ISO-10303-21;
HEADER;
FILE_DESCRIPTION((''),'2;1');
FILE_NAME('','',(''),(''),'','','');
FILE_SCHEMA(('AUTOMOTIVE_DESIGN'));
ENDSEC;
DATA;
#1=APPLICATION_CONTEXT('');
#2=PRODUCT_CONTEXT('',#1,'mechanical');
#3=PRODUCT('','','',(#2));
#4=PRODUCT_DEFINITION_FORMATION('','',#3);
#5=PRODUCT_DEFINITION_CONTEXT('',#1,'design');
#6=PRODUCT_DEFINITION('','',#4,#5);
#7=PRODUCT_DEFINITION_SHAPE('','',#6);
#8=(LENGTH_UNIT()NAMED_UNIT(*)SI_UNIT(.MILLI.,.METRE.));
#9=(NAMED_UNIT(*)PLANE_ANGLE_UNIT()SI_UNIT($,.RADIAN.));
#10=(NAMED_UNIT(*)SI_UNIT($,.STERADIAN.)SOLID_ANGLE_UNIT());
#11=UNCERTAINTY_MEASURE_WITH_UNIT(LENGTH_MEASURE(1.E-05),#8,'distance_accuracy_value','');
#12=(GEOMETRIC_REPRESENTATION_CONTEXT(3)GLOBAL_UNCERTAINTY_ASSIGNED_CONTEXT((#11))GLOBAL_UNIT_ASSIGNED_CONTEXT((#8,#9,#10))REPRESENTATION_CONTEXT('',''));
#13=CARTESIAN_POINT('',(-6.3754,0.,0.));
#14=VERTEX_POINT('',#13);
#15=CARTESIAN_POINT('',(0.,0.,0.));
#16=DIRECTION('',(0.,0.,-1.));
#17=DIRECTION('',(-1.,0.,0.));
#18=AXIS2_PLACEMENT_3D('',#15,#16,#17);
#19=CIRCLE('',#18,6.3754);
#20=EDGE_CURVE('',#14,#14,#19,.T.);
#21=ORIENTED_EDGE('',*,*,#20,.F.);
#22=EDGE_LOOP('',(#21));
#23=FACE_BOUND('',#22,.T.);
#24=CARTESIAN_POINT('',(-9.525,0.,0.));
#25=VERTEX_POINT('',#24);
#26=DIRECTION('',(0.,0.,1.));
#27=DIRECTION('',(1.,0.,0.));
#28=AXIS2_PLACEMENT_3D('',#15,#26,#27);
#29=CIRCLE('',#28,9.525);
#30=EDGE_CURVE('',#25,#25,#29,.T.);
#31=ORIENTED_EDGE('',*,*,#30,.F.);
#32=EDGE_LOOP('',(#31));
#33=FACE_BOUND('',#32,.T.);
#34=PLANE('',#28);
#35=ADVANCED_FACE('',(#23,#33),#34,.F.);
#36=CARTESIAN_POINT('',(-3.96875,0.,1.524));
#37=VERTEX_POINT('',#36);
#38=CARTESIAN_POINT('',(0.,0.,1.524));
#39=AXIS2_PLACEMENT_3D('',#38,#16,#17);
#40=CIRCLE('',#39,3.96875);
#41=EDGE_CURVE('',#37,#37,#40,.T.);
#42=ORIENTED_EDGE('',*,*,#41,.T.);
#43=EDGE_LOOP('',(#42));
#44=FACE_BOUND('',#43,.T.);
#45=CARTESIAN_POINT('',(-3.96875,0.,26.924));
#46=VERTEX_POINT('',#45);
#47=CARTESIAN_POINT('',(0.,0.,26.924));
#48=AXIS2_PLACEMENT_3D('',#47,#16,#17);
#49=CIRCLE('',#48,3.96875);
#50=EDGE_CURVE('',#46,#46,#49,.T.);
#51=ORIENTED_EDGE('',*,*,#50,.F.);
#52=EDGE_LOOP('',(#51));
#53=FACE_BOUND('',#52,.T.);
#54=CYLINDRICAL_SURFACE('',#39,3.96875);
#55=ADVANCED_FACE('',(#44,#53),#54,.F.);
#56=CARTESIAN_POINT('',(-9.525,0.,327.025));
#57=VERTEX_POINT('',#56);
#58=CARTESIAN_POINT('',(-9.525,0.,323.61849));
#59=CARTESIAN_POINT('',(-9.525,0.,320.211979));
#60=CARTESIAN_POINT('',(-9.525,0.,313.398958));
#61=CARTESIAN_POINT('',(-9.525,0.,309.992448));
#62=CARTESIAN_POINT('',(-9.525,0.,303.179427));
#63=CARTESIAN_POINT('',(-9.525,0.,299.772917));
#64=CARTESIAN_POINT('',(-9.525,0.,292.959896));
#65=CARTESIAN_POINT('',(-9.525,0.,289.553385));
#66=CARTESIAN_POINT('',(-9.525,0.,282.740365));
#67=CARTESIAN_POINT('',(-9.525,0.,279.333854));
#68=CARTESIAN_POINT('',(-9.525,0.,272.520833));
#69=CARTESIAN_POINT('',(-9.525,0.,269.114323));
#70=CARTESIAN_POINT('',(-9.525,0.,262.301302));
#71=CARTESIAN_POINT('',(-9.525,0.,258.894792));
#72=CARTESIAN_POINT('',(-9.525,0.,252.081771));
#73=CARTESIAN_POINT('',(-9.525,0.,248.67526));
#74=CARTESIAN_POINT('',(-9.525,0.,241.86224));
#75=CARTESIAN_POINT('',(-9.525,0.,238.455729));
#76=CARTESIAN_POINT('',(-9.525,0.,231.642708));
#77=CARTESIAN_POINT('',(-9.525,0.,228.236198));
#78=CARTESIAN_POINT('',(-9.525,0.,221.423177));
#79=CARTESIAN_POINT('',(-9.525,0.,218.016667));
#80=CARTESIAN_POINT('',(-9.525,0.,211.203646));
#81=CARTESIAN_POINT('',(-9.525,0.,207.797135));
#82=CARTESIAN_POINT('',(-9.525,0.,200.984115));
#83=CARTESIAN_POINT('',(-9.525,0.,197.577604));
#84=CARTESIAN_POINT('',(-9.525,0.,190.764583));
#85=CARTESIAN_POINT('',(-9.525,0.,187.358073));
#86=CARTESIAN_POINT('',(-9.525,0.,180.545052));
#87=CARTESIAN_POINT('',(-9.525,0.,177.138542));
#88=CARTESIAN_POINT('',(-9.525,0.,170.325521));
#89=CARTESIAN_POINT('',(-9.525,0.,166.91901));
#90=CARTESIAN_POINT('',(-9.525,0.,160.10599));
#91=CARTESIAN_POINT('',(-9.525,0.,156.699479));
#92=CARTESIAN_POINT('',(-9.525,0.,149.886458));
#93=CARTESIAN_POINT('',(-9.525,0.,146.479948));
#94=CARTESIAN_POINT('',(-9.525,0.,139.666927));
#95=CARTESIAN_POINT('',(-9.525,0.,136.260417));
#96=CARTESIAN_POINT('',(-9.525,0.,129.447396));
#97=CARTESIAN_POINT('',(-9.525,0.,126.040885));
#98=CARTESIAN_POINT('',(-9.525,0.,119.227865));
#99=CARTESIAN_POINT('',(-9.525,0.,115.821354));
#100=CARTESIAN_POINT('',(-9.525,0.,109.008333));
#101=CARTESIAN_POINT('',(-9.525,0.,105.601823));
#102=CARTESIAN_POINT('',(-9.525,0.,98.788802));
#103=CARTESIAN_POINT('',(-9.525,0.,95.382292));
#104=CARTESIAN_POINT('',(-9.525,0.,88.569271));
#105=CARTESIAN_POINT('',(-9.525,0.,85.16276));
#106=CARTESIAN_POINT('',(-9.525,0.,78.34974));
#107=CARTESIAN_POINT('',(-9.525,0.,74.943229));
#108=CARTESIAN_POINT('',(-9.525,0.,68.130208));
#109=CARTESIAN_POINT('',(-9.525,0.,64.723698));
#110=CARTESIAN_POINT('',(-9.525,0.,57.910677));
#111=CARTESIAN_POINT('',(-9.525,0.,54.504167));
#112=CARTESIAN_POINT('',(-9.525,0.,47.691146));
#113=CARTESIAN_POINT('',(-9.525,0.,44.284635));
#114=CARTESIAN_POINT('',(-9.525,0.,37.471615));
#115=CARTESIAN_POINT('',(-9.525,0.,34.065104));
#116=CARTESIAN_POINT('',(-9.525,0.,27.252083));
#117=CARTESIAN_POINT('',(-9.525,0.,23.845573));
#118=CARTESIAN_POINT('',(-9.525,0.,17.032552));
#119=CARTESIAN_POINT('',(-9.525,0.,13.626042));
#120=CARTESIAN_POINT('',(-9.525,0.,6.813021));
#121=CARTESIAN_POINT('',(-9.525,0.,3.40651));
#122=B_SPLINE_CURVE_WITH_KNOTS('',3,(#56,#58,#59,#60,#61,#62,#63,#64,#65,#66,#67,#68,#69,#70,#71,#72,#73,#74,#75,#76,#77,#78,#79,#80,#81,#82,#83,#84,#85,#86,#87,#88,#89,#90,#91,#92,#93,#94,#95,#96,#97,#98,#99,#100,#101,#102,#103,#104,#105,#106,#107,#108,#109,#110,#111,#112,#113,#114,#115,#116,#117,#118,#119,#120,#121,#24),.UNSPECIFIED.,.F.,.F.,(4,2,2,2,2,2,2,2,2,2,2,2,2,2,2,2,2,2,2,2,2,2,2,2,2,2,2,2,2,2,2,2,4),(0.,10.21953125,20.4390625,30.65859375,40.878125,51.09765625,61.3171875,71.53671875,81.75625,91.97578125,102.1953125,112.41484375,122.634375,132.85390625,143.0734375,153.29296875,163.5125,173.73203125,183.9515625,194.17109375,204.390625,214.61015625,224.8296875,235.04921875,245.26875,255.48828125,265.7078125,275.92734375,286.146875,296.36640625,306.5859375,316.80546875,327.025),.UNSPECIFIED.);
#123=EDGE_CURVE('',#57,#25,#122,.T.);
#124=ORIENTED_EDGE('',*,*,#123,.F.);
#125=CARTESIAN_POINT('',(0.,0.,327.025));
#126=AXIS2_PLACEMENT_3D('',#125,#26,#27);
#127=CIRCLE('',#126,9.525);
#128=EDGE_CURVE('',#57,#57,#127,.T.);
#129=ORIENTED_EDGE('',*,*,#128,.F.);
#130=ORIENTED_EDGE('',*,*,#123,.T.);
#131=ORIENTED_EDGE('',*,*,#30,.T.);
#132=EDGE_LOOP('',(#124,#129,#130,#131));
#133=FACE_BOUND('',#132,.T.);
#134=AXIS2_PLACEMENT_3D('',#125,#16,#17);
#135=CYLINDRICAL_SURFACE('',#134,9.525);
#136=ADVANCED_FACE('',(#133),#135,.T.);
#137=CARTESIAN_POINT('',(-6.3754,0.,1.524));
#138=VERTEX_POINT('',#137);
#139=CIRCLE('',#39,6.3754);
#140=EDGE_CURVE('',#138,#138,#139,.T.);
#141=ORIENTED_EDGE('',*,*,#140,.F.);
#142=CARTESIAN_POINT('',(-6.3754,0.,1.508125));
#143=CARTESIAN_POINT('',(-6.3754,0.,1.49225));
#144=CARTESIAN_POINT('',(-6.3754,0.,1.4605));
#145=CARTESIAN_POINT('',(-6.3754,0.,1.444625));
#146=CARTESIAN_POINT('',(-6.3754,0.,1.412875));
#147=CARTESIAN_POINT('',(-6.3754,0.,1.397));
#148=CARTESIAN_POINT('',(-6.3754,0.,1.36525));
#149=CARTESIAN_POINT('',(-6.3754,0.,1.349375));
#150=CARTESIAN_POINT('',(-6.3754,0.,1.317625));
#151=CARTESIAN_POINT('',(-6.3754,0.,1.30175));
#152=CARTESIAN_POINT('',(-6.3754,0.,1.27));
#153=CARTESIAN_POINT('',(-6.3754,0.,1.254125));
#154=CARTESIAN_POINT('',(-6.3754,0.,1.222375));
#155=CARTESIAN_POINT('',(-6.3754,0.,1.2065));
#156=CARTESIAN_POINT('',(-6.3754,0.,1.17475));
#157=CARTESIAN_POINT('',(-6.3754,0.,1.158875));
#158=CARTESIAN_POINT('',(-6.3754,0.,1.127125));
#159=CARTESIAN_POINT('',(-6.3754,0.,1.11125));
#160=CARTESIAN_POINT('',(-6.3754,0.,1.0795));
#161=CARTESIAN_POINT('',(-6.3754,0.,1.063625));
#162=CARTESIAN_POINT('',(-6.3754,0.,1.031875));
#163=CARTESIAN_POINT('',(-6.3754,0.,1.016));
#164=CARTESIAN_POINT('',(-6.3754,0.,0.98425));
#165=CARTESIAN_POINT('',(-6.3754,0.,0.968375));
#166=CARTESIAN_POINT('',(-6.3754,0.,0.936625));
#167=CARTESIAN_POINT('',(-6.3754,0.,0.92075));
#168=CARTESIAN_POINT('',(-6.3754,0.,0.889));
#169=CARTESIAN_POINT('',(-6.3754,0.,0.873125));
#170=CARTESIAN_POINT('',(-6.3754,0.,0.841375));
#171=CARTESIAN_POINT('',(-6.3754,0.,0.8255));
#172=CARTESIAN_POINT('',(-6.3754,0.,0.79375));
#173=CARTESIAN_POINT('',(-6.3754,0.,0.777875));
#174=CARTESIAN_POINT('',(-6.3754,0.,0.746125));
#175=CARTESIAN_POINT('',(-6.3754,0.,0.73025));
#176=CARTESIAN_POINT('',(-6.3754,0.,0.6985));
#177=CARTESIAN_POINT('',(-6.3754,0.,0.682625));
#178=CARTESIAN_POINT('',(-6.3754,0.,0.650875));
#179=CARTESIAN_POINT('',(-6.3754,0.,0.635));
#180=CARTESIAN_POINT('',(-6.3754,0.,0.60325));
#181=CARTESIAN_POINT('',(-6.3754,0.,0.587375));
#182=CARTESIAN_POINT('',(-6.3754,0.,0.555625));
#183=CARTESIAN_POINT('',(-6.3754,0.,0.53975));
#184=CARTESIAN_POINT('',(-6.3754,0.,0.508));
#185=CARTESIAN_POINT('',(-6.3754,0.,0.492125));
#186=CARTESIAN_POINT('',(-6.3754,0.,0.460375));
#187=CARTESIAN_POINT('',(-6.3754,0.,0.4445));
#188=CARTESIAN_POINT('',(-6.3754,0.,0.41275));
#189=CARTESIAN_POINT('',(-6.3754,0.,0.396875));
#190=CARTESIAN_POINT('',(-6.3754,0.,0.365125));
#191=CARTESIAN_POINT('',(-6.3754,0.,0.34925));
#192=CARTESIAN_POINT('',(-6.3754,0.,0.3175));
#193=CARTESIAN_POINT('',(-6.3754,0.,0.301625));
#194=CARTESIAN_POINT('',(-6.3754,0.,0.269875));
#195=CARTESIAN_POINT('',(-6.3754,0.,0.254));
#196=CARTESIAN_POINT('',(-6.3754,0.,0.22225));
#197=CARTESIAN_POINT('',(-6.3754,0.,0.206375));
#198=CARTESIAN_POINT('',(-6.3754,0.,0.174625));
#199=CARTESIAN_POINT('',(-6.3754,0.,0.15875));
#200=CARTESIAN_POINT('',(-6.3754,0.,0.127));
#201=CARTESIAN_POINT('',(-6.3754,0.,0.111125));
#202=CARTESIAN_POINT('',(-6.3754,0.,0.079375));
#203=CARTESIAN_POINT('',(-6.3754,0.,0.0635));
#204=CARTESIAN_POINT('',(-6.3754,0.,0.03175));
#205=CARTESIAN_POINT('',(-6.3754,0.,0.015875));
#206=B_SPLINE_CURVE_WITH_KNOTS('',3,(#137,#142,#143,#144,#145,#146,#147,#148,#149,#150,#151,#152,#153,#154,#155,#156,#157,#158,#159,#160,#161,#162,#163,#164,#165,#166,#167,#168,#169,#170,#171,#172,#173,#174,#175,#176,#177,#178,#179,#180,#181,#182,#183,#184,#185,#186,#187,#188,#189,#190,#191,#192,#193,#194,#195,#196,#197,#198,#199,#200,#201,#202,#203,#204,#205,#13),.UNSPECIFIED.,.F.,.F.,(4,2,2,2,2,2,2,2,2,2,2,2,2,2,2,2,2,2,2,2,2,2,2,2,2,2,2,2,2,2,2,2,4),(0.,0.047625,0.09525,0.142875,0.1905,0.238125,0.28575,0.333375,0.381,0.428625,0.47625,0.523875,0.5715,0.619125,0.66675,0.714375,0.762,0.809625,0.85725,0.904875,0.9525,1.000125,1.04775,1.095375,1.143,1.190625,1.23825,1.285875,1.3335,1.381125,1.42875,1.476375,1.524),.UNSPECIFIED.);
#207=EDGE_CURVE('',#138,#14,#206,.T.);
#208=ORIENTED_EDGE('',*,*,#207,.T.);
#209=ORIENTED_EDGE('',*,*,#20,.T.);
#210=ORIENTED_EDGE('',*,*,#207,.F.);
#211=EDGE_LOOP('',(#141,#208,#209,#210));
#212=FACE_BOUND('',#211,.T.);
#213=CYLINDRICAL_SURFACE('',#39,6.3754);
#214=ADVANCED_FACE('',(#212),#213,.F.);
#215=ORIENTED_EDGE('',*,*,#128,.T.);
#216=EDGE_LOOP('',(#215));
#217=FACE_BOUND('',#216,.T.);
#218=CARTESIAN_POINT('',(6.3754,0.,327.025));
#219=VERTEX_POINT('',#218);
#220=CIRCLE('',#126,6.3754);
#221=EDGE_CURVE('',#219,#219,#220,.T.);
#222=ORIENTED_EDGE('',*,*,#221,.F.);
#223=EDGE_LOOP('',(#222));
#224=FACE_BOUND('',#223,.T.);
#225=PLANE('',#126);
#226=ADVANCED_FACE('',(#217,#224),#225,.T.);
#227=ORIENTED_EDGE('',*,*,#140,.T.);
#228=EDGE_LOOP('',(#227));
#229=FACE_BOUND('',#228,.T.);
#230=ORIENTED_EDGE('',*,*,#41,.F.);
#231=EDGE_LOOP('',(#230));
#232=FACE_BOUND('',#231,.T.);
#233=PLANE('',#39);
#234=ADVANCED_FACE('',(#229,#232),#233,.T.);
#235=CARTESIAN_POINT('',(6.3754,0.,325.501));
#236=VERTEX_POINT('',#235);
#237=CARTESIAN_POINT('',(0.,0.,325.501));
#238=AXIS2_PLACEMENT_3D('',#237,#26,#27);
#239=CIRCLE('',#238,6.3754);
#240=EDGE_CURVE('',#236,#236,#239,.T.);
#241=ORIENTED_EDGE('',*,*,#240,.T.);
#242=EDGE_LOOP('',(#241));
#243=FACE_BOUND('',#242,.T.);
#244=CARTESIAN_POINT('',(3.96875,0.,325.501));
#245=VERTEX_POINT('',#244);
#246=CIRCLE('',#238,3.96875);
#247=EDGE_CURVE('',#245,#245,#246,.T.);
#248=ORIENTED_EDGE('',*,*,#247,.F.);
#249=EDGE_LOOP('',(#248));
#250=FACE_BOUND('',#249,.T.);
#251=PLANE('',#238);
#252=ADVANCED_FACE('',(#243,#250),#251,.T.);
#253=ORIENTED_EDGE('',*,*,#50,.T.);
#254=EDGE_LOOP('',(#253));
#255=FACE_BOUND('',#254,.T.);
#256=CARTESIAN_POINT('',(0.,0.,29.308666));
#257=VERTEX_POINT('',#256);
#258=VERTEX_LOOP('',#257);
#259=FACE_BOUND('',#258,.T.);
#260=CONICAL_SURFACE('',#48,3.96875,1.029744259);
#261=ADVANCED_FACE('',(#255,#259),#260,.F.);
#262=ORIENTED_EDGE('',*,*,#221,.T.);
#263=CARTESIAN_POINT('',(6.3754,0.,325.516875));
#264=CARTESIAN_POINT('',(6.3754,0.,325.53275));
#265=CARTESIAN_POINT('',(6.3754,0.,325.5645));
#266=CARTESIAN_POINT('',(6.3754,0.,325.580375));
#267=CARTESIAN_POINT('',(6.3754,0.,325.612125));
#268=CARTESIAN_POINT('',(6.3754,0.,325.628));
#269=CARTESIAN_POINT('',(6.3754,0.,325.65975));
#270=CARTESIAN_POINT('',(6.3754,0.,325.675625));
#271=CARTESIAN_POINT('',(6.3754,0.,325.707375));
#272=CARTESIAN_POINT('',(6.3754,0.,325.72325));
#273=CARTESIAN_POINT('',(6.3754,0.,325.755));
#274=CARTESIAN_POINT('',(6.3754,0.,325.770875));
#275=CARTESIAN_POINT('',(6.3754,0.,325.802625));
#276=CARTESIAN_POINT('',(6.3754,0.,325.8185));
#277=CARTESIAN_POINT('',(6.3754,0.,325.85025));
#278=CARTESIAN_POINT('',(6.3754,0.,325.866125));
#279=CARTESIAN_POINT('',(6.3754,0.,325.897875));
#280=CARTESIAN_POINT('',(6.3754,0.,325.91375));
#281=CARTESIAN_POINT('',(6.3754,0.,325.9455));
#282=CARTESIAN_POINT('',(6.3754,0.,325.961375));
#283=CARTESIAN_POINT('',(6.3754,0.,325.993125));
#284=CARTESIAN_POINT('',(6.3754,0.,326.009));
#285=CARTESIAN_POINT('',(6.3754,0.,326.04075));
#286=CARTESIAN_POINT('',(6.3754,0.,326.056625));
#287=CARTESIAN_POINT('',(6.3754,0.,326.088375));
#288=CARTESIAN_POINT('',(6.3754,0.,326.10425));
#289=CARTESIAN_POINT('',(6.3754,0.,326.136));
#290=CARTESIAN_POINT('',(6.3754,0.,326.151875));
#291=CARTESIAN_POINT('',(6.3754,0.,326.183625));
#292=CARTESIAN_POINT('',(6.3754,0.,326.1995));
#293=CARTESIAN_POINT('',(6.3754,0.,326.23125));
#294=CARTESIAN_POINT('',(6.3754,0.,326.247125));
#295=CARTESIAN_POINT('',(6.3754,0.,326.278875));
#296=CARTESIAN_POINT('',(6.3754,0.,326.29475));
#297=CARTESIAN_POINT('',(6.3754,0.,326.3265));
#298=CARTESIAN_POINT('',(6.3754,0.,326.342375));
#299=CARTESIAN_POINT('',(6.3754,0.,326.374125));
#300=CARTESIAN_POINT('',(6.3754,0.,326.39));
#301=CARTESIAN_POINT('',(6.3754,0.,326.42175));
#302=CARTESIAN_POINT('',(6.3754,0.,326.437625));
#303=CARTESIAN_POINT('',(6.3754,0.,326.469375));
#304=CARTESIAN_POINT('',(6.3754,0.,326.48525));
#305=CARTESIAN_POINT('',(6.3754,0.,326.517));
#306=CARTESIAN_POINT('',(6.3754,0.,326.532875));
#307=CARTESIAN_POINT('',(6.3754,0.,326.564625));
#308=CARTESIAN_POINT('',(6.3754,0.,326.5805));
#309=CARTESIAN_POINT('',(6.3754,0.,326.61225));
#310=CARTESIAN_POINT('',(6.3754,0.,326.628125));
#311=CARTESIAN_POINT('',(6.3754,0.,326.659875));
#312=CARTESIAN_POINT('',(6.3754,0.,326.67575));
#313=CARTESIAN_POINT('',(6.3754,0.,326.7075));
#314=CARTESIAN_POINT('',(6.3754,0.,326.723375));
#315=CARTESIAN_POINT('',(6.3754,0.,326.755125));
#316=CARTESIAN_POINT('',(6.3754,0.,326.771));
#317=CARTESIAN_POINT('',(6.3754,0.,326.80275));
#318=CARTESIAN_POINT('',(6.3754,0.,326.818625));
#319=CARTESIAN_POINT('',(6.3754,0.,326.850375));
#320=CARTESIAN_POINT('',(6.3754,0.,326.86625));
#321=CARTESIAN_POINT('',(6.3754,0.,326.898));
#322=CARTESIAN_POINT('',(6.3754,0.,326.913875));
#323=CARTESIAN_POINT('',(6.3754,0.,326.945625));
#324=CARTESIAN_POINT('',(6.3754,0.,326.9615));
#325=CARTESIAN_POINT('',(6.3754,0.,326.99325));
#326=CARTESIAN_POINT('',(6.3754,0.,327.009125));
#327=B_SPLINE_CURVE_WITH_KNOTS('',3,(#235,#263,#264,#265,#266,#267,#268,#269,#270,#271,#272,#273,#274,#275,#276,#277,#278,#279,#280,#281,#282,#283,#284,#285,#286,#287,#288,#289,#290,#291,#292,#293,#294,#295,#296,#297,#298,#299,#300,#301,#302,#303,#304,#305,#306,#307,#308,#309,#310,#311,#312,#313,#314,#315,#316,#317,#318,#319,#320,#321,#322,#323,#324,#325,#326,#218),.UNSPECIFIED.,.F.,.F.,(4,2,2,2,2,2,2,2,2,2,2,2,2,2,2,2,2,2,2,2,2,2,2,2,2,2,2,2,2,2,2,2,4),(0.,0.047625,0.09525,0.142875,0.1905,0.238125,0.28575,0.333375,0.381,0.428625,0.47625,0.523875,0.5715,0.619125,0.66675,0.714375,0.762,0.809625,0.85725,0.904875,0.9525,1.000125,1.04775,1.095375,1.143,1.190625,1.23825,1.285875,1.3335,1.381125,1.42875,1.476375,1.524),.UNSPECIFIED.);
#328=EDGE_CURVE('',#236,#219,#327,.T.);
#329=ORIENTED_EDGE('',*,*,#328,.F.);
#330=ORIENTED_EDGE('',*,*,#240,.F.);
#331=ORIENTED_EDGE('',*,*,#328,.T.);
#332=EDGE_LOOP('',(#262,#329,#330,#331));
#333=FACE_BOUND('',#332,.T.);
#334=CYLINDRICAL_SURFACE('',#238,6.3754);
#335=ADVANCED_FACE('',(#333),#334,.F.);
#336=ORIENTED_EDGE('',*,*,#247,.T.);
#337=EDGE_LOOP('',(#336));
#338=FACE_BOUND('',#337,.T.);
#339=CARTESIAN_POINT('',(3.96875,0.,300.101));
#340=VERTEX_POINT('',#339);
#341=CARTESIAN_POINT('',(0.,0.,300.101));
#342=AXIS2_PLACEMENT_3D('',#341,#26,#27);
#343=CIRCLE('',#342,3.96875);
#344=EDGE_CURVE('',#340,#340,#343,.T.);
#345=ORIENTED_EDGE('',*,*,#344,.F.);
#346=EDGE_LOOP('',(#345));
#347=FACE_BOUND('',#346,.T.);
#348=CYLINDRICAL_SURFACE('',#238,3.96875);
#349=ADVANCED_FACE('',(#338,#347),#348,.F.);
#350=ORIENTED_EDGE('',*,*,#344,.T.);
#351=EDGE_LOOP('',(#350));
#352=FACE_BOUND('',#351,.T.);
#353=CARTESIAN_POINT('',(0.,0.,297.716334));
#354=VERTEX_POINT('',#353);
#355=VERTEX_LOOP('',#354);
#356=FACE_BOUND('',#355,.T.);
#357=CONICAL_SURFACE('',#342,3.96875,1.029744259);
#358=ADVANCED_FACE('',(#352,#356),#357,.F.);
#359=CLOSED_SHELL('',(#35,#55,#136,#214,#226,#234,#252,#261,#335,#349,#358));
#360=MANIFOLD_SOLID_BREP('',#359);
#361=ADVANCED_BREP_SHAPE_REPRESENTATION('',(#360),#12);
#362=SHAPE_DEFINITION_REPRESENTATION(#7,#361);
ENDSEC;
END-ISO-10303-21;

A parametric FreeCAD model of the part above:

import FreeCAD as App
import Part
import Sketcher
Q = App.Units.Quantity

doc = App.newDocument("Part")
params = doc.addObject("Spreadsheet::Sheet", "Params")
for row, (alias, value) in enumerate([
    ("sketch1_diameter", "0.75 in"),
    ("pad1_length", "12.875 in"),
    ("sketch2_diameter", "0.502 in"),
    ("pocket1_length", "0.06 in"),
    ("sketch3_diameter", "0.3125 in"),
    ("hole_diameter", "0.3125 in"),
    ("hole_depth", "1 in"),
    ("sketch4_diameter", "0.502 in"),
    ("pocket2_length", "0.06 in"),
    ("sketch5_diameter", "0.3125 in"),
    ("hole2_diameter", "0.3125 in"),
    ("hole2_depth", "1 in"),
], start=1):
    params.set(f"A{row}", alias)
    params.set(f"B{row}", "=" + value)
    params.setAlias(f"B{row}", alias)

body = doc.addObject("PartDesign::Body", "Body")

# Sketch on XY plane
sketch1 = body.newObject("Sketcher::SketchObject", "Sketch")
sketch1.AttachmentSupport = (doc.getObject("XY_Plane"), [""])
sketch1.MapMode = "FlatFace"
sketch1.addGeometry(Part.Circle(App.Vector(0, 0, 0), App.Vector(0, 0, 1), 10), False)
sketch1.addConstraint([
    Sketcher.Constraint("Coincident", 0, 3, -1, 1),
    Sketcher.Constraint("Diameter", 0, Q("0.75 in")),
])
sketch1.setExpression("Constraints[1]", "Params.sketch1_diameter")
pad1 = body.newObject("PartDesign::Pad", "Pad")
pad1.Profile = sketch1
pad1.setExpression("Length", "Params.pad1_length")

# Sketch on XY plane
sketch2 = body.newObject("Sketcher::SketchObject", "Sketch001")
sketch2.AttachmentSupport = (doc.getObject("XY_Plane"), [""])
sketch2.MapMode = "FlatFace"
sketch2.AttachmentOffset = App.Placement(App.Vector(0, 0, 12.875 * 25.4), App.Rotation())
sketch2.addGeometry(Part.Circle(App.Vector(0, 0, 0), App.Vector(0, 0, 1), 6), False)
sketch2.addConstraint([
    Sketcher.Constraint("Coincident", 0, 3, -1, 1),
    Sketcher.Constraint("Diameter", 0, Q("0.502 in")),
])
sketch2.setExpression("Constraints[1]", "Params.sketch2_diameter")
pocket1 = body.newObject("PartDesign::Pocket", "Pocket")
pocket1.Profile = sketch2
pocket1.setExpression("Length", "Params.pocket1_length")

# Sketch on XY plane
sketch3 = body.newObject("Sketcher::SketchObject", "Sketch002")
sketch3.AttachmentSupport = (doc.getObject("XY_Plane"), [""])
sketch3.MapMode = "FlatFace"
sketch3.AttachmentOffset = App.Placement(App.Vector(0, 0, 12.815 * 25.4), App.Rotation())
sketch3.addGeometry(Part.Circle(App.Vector(0, 0, 0), App.Vector(0, 0, 1), 4), False)
sketch3.addConstraint([
    Sketcher.Constraint("Coincident", 0, 3, -1, 1),
    Sketcher.Constraint("Diameter", 0, Q("0.3125 in")),
])
sketch3.setExpression("Constraints[1]", "Params.sketch3_diameter")
doc.recompute()
hole = body.newObject("PartDesign::Hole", "Hole")
hole.Profile = sketch3
hole.ThreadType = "None"
hole.setExpression("Diameter", "Params.hole_diameter")
hole.DepthType = "Dimension"
hole.setExpression("Depth", "Params.hole_depth")
hole.DrillPoint = "Angled"
hole.DrillPointAngle = 118

# Sketch on XY plane
sketch4 = body.newObject("Sketcher::SketchObject", "Sketch003")
sketch4.AttachmentSupport = (doc.getObject("XY_Plane"), [""])
sketch4.MapMode = "FlatFace"
sketch4.AttachmentOffset = App.Placement(App.Vector(0, 0, 0.06 * 25.4), App.Rotation())
sketch4.addGeometry(Part.Circle(App.Vector(0, 0, 0), App.Vector(0, 0, 1), 6), False)
sketch4.addConstraint([
    Sketcher.Constraint("Coincident", 0, 3, -1, 1),
    Sketcher.Constraint("Diameter", 0, Q("0.502 in")),
])
sketch4.setExpression("Constraints[1]", "Params.sketch4_diameter")
pocket2 = body.newObject("PartDesign::Pocket", "Pocket001")
pocket2.Profile = sketch4
pocket2.setExpression("Length", "Params.pocket2_length")

# Sketch on XY plane
sketch5 = body.newObject("Sketcher::SketchObject", "Sketch004")
sketch5.AttachmentSupport = (doc.getObject("XY_Plane"), [""])
sketch5.MapMode = "FlatFace"
sketch5.AttachmentOffset = App.Placement(App.Vector(0, 0, 0.06 * 25.4), App.Rotation())
sketch5.addGeometry(Part.Circle(App.Vector(0, 0, 0), App.Vector(0, 0, 1), 4), False)
sketch5.addConstraint([
    Sketcher.Constraint("Coincident", 0, 3, -1, 1),
    Sketcher.Constraint("Diameter", 0, Q("0.3125 in")),
])
sketch5.setExpression("Constraints[1]", "Params.sketch5_diameter")
doc.recompute()
hole2 = body.newObject("PartDesign::Hole", "Hole001")
hole2.Profile = sketch5
hole2.ThreadType = "None"
hole2.setExpression("Diameter", "Params.hole2_diameter")
hole2.DepthType = "Dimension"
hole2.setExpression("Depth", "Params.hole2_depth")
hole2.DrillPoint = "Angled"
hole2.DrillPointAngle = 118
hole2.Reversed = True

doc.recompute()
